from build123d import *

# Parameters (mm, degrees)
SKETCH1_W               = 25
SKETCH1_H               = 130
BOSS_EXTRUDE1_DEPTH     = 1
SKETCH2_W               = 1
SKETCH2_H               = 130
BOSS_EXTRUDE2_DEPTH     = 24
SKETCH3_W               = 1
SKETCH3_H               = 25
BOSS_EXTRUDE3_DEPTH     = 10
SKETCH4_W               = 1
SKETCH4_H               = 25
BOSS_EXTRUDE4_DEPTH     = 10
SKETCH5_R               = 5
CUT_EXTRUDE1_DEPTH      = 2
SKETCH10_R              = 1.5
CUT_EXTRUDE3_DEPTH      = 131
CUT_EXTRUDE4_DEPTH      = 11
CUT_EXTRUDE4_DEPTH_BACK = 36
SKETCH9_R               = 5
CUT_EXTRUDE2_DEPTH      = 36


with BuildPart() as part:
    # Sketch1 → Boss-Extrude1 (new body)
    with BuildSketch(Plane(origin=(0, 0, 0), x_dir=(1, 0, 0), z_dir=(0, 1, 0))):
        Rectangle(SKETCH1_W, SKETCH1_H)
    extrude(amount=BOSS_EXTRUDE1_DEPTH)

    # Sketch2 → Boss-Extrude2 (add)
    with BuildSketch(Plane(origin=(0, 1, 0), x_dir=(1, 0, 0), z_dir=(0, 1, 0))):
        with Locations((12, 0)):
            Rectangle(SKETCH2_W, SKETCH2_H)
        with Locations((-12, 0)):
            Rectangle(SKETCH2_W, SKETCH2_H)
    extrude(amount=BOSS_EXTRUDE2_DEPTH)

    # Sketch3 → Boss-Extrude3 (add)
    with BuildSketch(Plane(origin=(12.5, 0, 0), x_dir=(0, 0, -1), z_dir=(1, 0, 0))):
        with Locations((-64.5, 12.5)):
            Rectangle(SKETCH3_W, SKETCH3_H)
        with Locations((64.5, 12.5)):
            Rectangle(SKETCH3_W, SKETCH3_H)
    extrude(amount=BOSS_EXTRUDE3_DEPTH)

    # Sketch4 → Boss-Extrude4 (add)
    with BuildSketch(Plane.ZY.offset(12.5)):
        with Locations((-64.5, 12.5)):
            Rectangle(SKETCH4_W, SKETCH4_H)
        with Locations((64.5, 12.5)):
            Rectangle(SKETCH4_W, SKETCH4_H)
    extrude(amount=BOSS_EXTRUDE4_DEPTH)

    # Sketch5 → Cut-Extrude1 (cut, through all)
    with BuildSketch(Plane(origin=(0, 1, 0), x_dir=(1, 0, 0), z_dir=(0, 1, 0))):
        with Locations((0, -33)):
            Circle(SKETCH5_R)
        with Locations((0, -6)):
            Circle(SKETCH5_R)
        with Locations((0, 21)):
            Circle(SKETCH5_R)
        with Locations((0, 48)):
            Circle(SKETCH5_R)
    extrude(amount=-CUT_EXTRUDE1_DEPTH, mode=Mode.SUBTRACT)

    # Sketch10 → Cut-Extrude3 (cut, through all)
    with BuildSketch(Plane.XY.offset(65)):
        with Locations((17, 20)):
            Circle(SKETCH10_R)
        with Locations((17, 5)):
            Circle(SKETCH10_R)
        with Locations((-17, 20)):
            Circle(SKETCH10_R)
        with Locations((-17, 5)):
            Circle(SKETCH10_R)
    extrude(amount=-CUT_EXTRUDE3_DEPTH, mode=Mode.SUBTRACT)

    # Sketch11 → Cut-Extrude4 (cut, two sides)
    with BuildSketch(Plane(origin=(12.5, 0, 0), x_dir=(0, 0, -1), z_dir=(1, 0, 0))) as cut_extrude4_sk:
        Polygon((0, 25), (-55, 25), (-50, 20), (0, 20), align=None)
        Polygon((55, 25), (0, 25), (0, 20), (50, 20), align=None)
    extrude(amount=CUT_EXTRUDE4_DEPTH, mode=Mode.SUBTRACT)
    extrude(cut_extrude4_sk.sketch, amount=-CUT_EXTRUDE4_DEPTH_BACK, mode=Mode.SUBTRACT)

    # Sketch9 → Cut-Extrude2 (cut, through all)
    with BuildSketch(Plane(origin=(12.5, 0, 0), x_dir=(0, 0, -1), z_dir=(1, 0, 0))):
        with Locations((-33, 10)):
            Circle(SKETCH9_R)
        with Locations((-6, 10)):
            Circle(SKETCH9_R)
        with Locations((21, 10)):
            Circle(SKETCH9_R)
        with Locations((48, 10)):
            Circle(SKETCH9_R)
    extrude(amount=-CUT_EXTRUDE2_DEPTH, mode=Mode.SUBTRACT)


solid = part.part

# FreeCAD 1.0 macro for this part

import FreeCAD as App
import Part
import Sketcher

V = App.Vector
Q = App.Units.Quantity

doc = App.newDocument("Part")
body = doc.addObject("PartDesign::Body", "Body")

sketch1 = body.newObject("Sketcher::SketchObject", "Sketch")
sketch1.AttachmentSupport = (doc.getObject("XZ_Plane"), [""])
sketch1.MapMode = "FlatFace"
sketch1.addGeometry(Part.LineSegment(V(-12, -65, 0), V(-12, 65, 0)), False)
sketch1.addGeometry(Part.LineSegment(V(-12, 65, 0), V(12, 65, 0)), False)
sketch1.addGeometry(Part.LineSegment(V(12, 65, 0), V(12, -65, 0)), False)
sketch1.addGeometry(Part.LineSegment(V(12, -65, 0), V(-12, -65, 0)), False)
sketch1.addConstraint(Sketcher.Constraint("Coincident", 0, 2, 1, 1))
sketch1.addConstraint(Sketcher.Constraint("Coincident", 1, 2, 2, 1))
sketch1.addConstraint(Sketcher.Constraint("Coincident", 2, 2, 3, 1))
sketch1.addConstraint(Sketcher.Constraint("Coincident", 3, 2, 0, 1))
sketch1.addConstraint(Sketcher.Constraint("Vertical", 0))
sketch1.addConstraint(Sketcher.Constraint("Horizontal", 1))
sketch1.addConstraint(Sketcher.Constraint("Vertical", 2))
sketch1.addConstraint(Sketcher.Constraint("Horizontal", 3))
sketch1.addConstraint(Sketcher.Constraint("Symmetric", 0, 2, 2, 2, -1, 1))
sketch1.addConstraint(Sketcher.Constraint("DistanceX", 1, 1, 1, 2, Q("25 mm")))
sketch1.addConstraint(Sketcher.Constraint("DistanceY", 0, 1, 0, 2, Q("130 mm")))
pad1 = body.newObject("PartDesign::Pad", "Pad")
pad1.Profile = sketch1
pad1.Length = 1
pad1.Reversed = True

sketch2 = body.newObject("Sketcher::SketchObject", "Sketch001")
sketch2.AttachmentSupport = (doc.getObject("XZ_Plane"), [""])
sketch2.MapMode = "FlatFace"
sketch2.AttachmentOffset = App.Placement(V(0, 0, -1), App.Rotation())
sketch2.addGeometry(Part.LineSegment(V(11.5, -65, 0), V(11.5, 65, 0)), False)
sketch2.addGeometry(Part.LineSegment(V(11.5, 65, 0), V(12.5, 65, 0)), False)
sketch2.addGeometry(Part.LineSegment(V(12.5, 65, 0), V(12.5, -65, 0)), False)
sketch2.addGeometry(Part.LineSegment(V(12.5, -65, 0), V(11.5, -65, 0)), False)
sketch2.addGeometry(Part.LineSegment(V(-12.5, -65, 0), V(-12.5, 65, 0)), False)
sketch2.addGeometry(Part.LineSegment(V(-12.5, 65, 0), V(-11.5, 65, 0)), False)
sketch2.addGeometry(Part.LineSegment(V(-11.5, 65, 0), V(-11.5, -65, 0)), False)
sketch2.addGeometry(Part.LineSegment(V(-11.5, -65, 0), V(-12.5, -65, 0)), False)
sketch2.addConstraint(Sketcher.Constraint("Coincident", 0, 2, 1, 1))
sketch2.addConstraint(Sketcher.Constraint("Coincident", 1, 2, 2, 1))
sketch2.addConstraint(Sketcher.Constraint("Coincident", 2, 2, 3, 1))
sketch2.addConstraint(Sketcher.Constraint("Coincident", 3, 2, 0, 1))
sketch2.addConstraint(Sketcher.Constraint("Coincident", 4, 2, 5, 1))
sketch2.addConstraint(Sketcher.Constraint("Coincident", 5, 2, 6, 1))
sketch2.addConstraint(Sketcher.Constraint("Coincident", 6, 2, 7, 1))
sketch2.addConstraint(Sketcher.Constraint("Coincident", 7, 2, 4, 1))
sketch2.addConstraint(Sketcher.Constraint("Vertical", 0))
sketch2.addConstraint(Sketcher.Constraint("Horizontal", 1))
sketch2.addConstraint(Sketcher.Constraint("Vertical", 2))
sketch2.addConstraint(Sketcher.Constraint("Horizontal", 3))
sketch2.addConstraint(Sketcher.Constraint("Vertical", 4))
sketch2.addConstraint(Sketcher.Constraint("Horizontal", 5))
sketch2.addConstraint(Sketcher.Constraint("Vertical", 6))
sketch2.addConstraint(Sketcher.Constraint("Horizontal", 7))
sketch2.addConstraint(Sketcher.Constraint("Symmetric", 2, 2, 4, 2, -1, 1))
sketch2.addConstraint(Sketcher.Constraint("Symmetric", 0, 2, 6, 2, -1, 1))
sketch2.addConstraint(Sketcher.Constraint("Horizontal", 1, 2, 4, 2))
sketch2.addConstraint(Sketcher.Constraint("DistanceX", 1, 1, 1, 2, Q("1 mm")))
sketch2.addConstraint(Sketcher.Constraint("DistanceY", 0, 1, 0, 2, Q("130 mm")))
sketch2.addConstraint(Sketcher.Constraint("DistanceX", 4, 2, 0, 2, Q("24 mm")))
pad2 = body.newObject("PartDesign::Pad", "Pad001")
pad2.Profile = sketch2
pad2.Length = 24
pad2.Reversed = True

sketch3 = body.newObject("Sketcher::SketchObject", "Sketch002")
sketch3.AttachmentSupport = (doc.getObject("YZ_Plane"), [""])
sketch3.MapMode = "FlatFace"
sketch3.AttachmentOffset = App.Placement(V(0, 0, 12.5), App.Rotation())
sketch3.addGeometry(Part.LineSegment(V(25, 65, 0), V(0, 65, 0)), False)
sketch3.addGeometry(Part.LineSegment(V(0, 65, 0), V(0, 64, 0)), False)
sketch3.addGeometry(Part.LineSegment(V(0, 64, 0), V(25, 64, 0)), False)
sketch3.addGeometry(Part.LineSegment(V(25, 64, 0), V(25, 65, 0)), False)
sketch3.addGeometry(Part.LineSegment(V(25, -64, 0), V(0, -64, 0)), False)
sketch3.addGeometry(Part.LineSegment(V(0, -64, 0), V(0, -65, 0)), False)
sketch3.addGeometry(Part.LineSegment(V(0, -65, 0), V(25, -65, 0)), False)
sketch3.addGeometry(Part.LineSegment(V(25, -65, 0), V(25, -64, 0)), False)
sketch3.addConstraint(Sketcher.Constraint("Coincident", 0, 2, 1, 1))
sketch3.addConstraint(Sketcher.Constraint("Coincident", 1, 2, 2, 1))
sketch3.addConstraint(Sketcher.Constraint("Coincident", 2, 2, 3, 1))
sketch3.addConstraint(Sketcher.Constraint("Coincident", 3, 2, 0, 1))
sketch3.addConstraint(Sketcher.Constraint("Coincident", 4, 2, 5, 1))
sketch3.addConstraint(Sketcher.Constraint("Coincident", 5, 2, 6, 1))
sketch3.addConstraint(Sketcher.Constraint("Coincident", 6, 2, 7, 1))
sketch3.addConstraint(Sketcher.Constraint("Coincident", 7, 2, 4, 1))
sketch3.addConstraint(Sketcher.Constraint("Horizontal", 0))
sketch3.addConstraint(Sketcher.Constraint("Vertical", 1))
sketch3.addConstraint(Sketcher.Constraint("Horizontal", 2))
sketch3.addConstraint(Sketcher.Constraint("Vertical", 3))
sketch3.addConstraint(Sketcher.Constraint("Horizontal", 4))
sketch3.addConstraint(Sketcher.Constraint("Vertical", 5))
sketch3.addConstraint(Sketcher.Constraint("Horizontal", 6))
sketch3.addConstraint(Sketcher.Constraint("Vertical", 7))
sketch3.addConstraint(Sketcher.Constraint("Symmetric", 1, 2, 4, 2, -1, 1))
sketch3.addConstraint(Sketcher.Constraint("Symmetric", 0, 2, 5, 2, -1))
sketch3.addConstraint(Sketcher.Constraint("Vertical", 3, 2, 6, 2))
sketch3.addConstraint(Sketcher.Constraint("DistanceX", 0, 2, 0, 1, Q("25 mm")))
sketch3.addConstraint(Sketcher.Constraint("DistanceY", 1, 2, 1, 1, Q("1 mm")))
sketch3.addConstraint(Sketcher.Constraint("DistanceY", -1, 1, 0, 2, Q("65 mm")))
pad3 = body.newObject("PartDesign::Pad", "Pad002")
pad3.Profile = sketch3
pad3.Length = 10

sketch4 = body.newObject("Sketcher::SketchObject", "Sketch003")
sketch4.AttachmentSupport = (doc.getObject("YZ_Plane"), [""])
sketch4.MapMode = "FlatFace"
sketch4.AttachmentOffset = App.Placement(V(0, 0, -12.5), App.Rotation())
sketch4.addGeometry(Part.LineSegment(V(25, -65, 0), V(0, -65, 0)), False)
sketch4.addGeometry(Part.LineSegment(V(0, -65, 0), V(0, -64, 0)), False)
sketch4.addGeometry(Part.LineSegment(V(0, -64, 0), V(25, -64, 0)), False)
sketch4.addGeometry(Part.LineSegment(V(25, -64, 0), V(25, -65, 0)), False)
sketch4.addGeometry(Part.LineSegment(V(25, 64, 0), V(0, 64, 0)), False)
sketch4.addGeometry(Part.LineSegment(V(0, 64, 0), V(0, 65, 0)), False)
sketch4.addGeometry(Part.LineSegment(V(0, 65, 0), V(25, 65, 0)), False)
sketch4.addGeometry(Part.LineSegment(V(25, 65, 0), V(25, 64, 0)), False)
sketch4.addConstraint(Sketcher.Constraint("Coincident", 0, 2, 1, 1))
sketch4.addConstraint(Sketcher.Constraint("Coincident", 1, 2, 2, 1))
sketch4.addConstraint(Sketcher.Constraint("Coincident", 2, 2, 3, 1))
sketch4.addConstraint(Sketcher.Constraint("Coincident", 3, 2, 0, 1))
sketch4.addConstraint(Sketcher.Constraint("Coincident", 4, 2, 5, 1))
sketch4.addConstraint(Sketcher.Constraint("Coincident", 5, 2, 6, 1))
sketch4.addConstraint(Sketcher.Constraint("Coincident", 6, 2, 7, 1))
sketch4.addConstraint(Sketcher.Constraint("Coincident", 7, 2, 4, 1))
sketch4.addConstraint(Sketcher.Constraint("Horizontal", 0))
sketch4.addConstraint(Sketcher.Constraint("Vertical", 1))
sketch4.addConstraint(Sketcher.Constraint("Horizontal", 2))
sketch4.addConstraint(Sketcher.Constraint("Vertical", 3))
sketch4.addConstraint(Sketcher.Constraint("Horizontal", 4))
sketch4.addConstraint(Sketcher.Constraint("Vertical", 5))
sketch4.addConstraint(Sketcher.Constraint("Horizontal", 6))
sketch4.addConstraint(Sketcher.Constraint("Vertical", 7))
sketch4.addConstraint(Sketcher.Constraint("Symmetric", 1, 2, 4, 2, -1, 1))
sketch4.addConstraint(Sketcher.Constraint("Symmetric", 0, 2, 5, 2, -1))
sketch4.addConstraint(Sketcher.Constraint("Vertical", 3, 2, 6, 2))
sketch4.addConstraint(Sketcher.Constraint("DistanceX", 0, 2, 0, 1, Q("25 mm")))
sketch4.addConstraint(Sketcher.Constraint("DistanceY", 1, 1, 1, 2, Q("1 mm")))
sketch4.addConstraint(Sketcher.Constraint("DistanceY", 0, 2, -1, 1, Q("65 mm")))
pad4 = body.newObject("PartDesign::Pad", "Pad003")
pad4.Profile = sketch4
pad4.Length = 10
pad4.Reversed = True

sketch5 = body.newObject("Sketcher::SketchObject", "Sketch004")
sketch5.AttachmentSupport = (doc.getObject("XZ_Plane"), [""])
sketch5.MapMode = "FlatFace"
sketch5.AttachmentOffset = App.Placement(V(0, 0, -1), App.Rotation())
sketch5.addGeometry(Part.Circle(V(0, 33, 0), V(0, 0, 1), 5), False)
sketch5.addGeometry(Part.Circle(V(0, 6, 0), V(0, 0, 1), 5), False)
sketch5.addGeometry(Part.Circle(V(0, -21, 0), V(0, 0, 1), 5), False)
sketch5.addGeometry(Part.Circle(V(0, -48, 0), V(0, 0, 1), 5), False)
sketch5.addConstraint(Sketcher.Constraint("Equal", 0, 1))
sketch5.addConstraint(Sketcher.Constraint("Equal", 1, 2))
sketch5.addConstraint(Sketcher.Constraint("Equal", 2, 3))
sketch5.addConstraint(Sketcher.Constraint("PointOnObject", 0, 3, -2))
sketch5.addConstraint(Sketcher.Constraint("PointOnObject", 1, 3, -2))
sketch5.addConstraint(Sketcher.Constraint("PointOnObject", 2, 3, -2))
sketch5.addConstraint(Sketcher.Constraint("PointOnObject", 3, 3, -2))
sketch5.addConstraint(Sketcher.Constraint("Diameter", 0, Q("10 mm")))
sketch5.addConstraint(Sketcher.Constraint("DistanceY", -1, 1, 0, 3, Q("33 mm")))
sketch5.addConstraint(Sketcher.Constraint("DistanceY", -1, 1, 1, 3, Q("6 mm")))
sketch5.addConstraint(Sketcher.Constraint("DistanceY", 2, 3, -1, 1, Q("21 mm")))
sketch5.addConstraint(Sketcher.Constraint("DistanceY", 3, 3, -1, 1, Q("48 mm")))
pocket1 = body.newObject("PartDesign::Pocket", "Pocket")
pocket1.Profile = sketch5
pocket1.Type = "ThroughAll"
pocket1.Reversed = True

sketch6 = body.newObject("Sketcher::SketchObject", "Sketch005")
sketch6.AttachmentSupport = (doc.getObject("XY_Plane"), [""])
sketch6.MapMode = "FlatFace"
sketch6.AttachmentOffset = App.Placement(V(0, 0, 65), App.Rotation())
sketch6.addGeometry(Part.Circle(V(17, 20, 0), V(0, 0, 1), 1.5), False)
sketch6.addGeometry(Part.Circle(V(17, 5, 0), V(0, 0, 1), 1.5), False)
sketch6.addGeometry(Part.Circle(V(-17, 20, 0), V(0, 0, 1), 1.5), False)
sketch6.addGeometry(Part.Circle(V(-17, 5, 0), V(0, 0, 1), 1.5), False)
sketch6.addConstraint(Sketcher.Constraint("Equal", 0, 1))
sketch6.addConstraint(Sketcher.Constraint("Equal", 1, 2))
sketch6.addConstraint(Sketcher.Constraint("Equal", 2, 3))
sketch6.addConstraint(Sketcher.Constraint("Symmetric", 0, 3, 2, 3, -2))
sketch6.addConstraint(Sketcher.Constraint("Symmetric", 1, 3, 3, 3, -2))
sketch6.addConstraint(Sketcher.Constraint("Vertical", 0, 3, 1, 3))
sketch6.addConstraint(Sketcher.Constraint("Diameter", 0, Q("3 mm")))
sketch6.addConstraint(Sketcher.Constraint("DistanceX", -1, 1, 0, 3, Q("17 mm")))
sketch6.addConstraint(Sketcher.Constraint("DistanceY", -1, 1, 0, 3, Q("20 mm")))
sketch6.addConstraint(Sketcher.Constraint("DistanceY", -1, 1, 1, 3, Q("5 mm")))
pocket2 = body.newObject("PartDesign::Pocket", "Pocket001")
pocket2.Profile = sketch6
pocket2.Type = "ThroughAll"

sketch7 = body.newObject("Sketcher::SketchObject", "Sketch006")
sketch7.AttachmentSupport = (doc.getObject("YZ_Plane"), [""])
sketch7.MapMode = "FlatFace"
sketch7.AttachmentOffset = App.Placement(V(0, 0, 12.5), App.Rotation())
sketch7.addGeometry(Part.LineSegment(V(25, 55, 0), V(20, 50, 0)), False)
sketch7.addGeometry(Part.LineSegment(V(20, 50, 0), V(20, -50, 0)), False)
sketch7.addGeometry(Part.LineSegment(V(20, -50, 0), V(25, -55, 0)), False)
sketch7.addGeometry(Part.LineSegment(V(25, -55, 0), V(25, 55, 0)), False)
sketch7.addConstraint(Sketcher.Constraint("Coincident", 0, 2, 1, 1))
sketch7.addConstraint(Sketcher.Constraint("Coincident", 1, 2, 2, 1))
sketch7.addConstraint(Sketcher.Constraint("Coincident", 2, 2, 3, 1))
sketch7.addConstraint(Sketcher.Constraint("Coincident", 3, 2, 0, 1))
sketch7.addConstraint(Sketcher.Constraint("Vertical", 1))
sketch7.addConstraint(Sketcher.Constraint("Vertical", 3))
sketch7.addConstraint(Sketcher.Constraint("Perpendicular", 0, 2))
sketch7.addConstraint(Sketcher.Constraint("Equal", 0, 2))
sketch7.addConstraint(Sketcher.Constraint("DistanceY", 1, 2, 1, 1, Q("100 mm")))
sketch7.addConstraint(Sketcher.Constraint("DistanceY", 3, 1, 3, 2, Q("110 mm")))
sketch7.addConstraint(Sketcher.Constraint("DistanceX", -1, 1, 0, 2, Q("20 mm")))
sketch7.addConstraint(Sketcher.Constraint("DistanceY", -1, 1, 0, 2, Q("50 mm")))
pocket3 = body.newObject("PartDesign::Pocket", "Pocket002")
pocket3.Profile = sketch7
pocket3.Type = "ThroughAll"
pocket3.Midplane = True

sketch8 = body.newObject("Sketcher::SketchObject", "Sketch007")
sketch8.AttachmentSupport = (doc.getObject("YZ_Plane"), [""])
sketch8.MapMode = "FlatFace"
sketch8.AttachmentOffset = App.Placement(V(0, 0, 12.5), App.Rotation())
sketch8.addGeometry(Part.Circle(V(10, 33, 0), V(0, 0, 1), 5), False)
sketch8.addGeometry(Part.Circle(V(10, 6, 0), V(0, 0, 1), 5), False)
sketch8.addGeometry(Part.Circle(V(10, -21, 0), V(0, 0, 1), 5), False)
sketch8.addGeometry(Part.Circle(V(10, -48, 0), V(0, 0, 1), 5), False)
sketch8.addConstraint(Sketcher.Constraint("Equal", 0, 1))
sketch8.addConstraint(Sketcher.Constraint("Equal", 1, 2))
sketch8.addConstraint(Sketcher.Constraint("Equal", 2, 3))
sketch8.addConstraint(Sketcher.Constraint("Vertical", 0, 3, 1, 3))
sketch8.addConstraint(Sketcher.Constraint("Vertical", 1, 3, 2, 3))
sketch8.addConstraint(Sketcher.Constraint("Vertical", 2, 3, 3, 3))
sketch8.addConstraint(Sketcher.Constraint("Diameter", 0, Q("10 mm")))
sketch8.addConstraint(Sketcher.Constraint("DistanceX", -1, 1, 0, 3, Q("10 mm")))
sketch8.addConstraint(Sketcher.Constraint("DistanceY", -1, 1, 0, 3, Q("33 mm")))
sketch8.addConstraint(Sketcher.Constraint("DistanceY", -1, 1, 1, 3, Q("6 mm")))
sketch8.addConstraint(Sketcher.Constraint("DistanceY", 2, 3, -1, 1, Q("21 mm")))
sketch8.addConstraint(Sketcher.Constraint("DistanceY", 3, 3, -1, 1, Q("48 mm")))
pocket4 = body.newObject("PartDesign::Pocket", "Pocket003")
pocket4.Profile = sketch8
pocket4.Type = "ThroughAll"

doc.recompute()
